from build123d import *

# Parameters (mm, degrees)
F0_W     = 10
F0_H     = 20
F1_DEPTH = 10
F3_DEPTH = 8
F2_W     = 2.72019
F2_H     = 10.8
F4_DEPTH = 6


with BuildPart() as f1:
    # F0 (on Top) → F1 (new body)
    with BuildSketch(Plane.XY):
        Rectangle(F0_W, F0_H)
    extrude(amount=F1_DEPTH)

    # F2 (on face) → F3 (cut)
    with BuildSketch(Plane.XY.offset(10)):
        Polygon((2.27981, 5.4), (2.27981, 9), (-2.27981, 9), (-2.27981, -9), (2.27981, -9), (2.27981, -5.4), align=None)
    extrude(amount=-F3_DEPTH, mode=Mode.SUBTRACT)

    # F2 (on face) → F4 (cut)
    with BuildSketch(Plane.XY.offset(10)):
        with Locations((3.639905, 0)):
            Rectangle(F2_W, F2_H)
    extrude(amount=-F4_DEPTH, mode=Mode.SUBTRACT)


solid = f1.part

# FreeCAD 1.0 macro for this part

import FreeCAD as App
import Part
import Sketcher
Q = App.Units.Quantity


def add_polygon(sketch, points):
    """Adds a closed chain of lines whose ends are joined by coincident constraints."""
    first, n = sketch.GeometryCount, len(points)
    for a, b in zip(points, points[1:] + points[:1]):
        sketch.addGeometry(Part.LineSegment(App.Vector(*a, 0), App.Vector(*b, 0)), False)
    for i in range(n):
        sketch.addConstraint(Sketcher.Constraint("Coincident", first + i, 2, first + (i + 1) % n, 1))

doc = App.newDocument("Part")
body = doc.addObject("PartDesign::Body", "Body")

# Sketch on XY plane
sketch1 = doc.addObject("Sketcher::SketchObject", "Sketch")
body.addObject(sketch1)
sketch1.AttachmentSupport = (doc.XY_Plane, [""])
sketch1.MapMode = "FlatFace"
add_polygon(sketch1, [(-5, 10), (-5, -10), (5, -10), (5, 10)])  # lines 0-3
sketch1.addConstraint(Sketcher.Constraint("Vertical", 0))
sketch1.addConstraint(Sketcher.Constraint("Horizontal", 1))
sketch1.addConstraint(Sketcher.Constraint("Vertical", 2))
sketch1.addConstraint(Sketcher.Constraint("Horizontal", 3))
sketch1.addConstraint(Sketcher.Constraint("Symmetric", 0, 2, 2, 2, -1, 1))
sketch1.addConstraint(Sketcher.Constraint("DistanceX", 1, 1, 1, 2, Q("10 mm")))
sketch1.addConstraint(Sketcher.Constraint("DistanceY", 0, 2, 0, 1, Q("20 mm")))
pad1 = doc.addObject("PartDesign::Pad", "Pad")
body.addObject(pad1)
pad1.Profile = sketch1
pad1.Length = 10

# Sketch on XY plane
sketch2 = doc.addObject("Sketcher::SketchObject", "Sketch001")
body.addObject(sketch2)
sketch2.AttachmentSupport = (doc.XY_Plane, [""])
sketch2.MapMode = "FlatFace"
sketch2.AttachmentOffset = App.Placement(App.Vector(0, 0, 10), App.Rotation())
add_polygon(sketch2, [(2.3, 9), (-2.3, 9), (-2.3, -9), (2.3, -9)])  # lines 0-3
sketch2.addConstraint(Sketcher.Constraint("Horizontal", 0))
sketch2.addConstraint(Sketcher.Constraint("Vertical", 1))
sketch2.addConstraint(Sketcher.Constraint("Horizontal", 2))
sketch2.addConstraint(Sketcher.Constraint("Vertical", 3))
sketch2.addConstraint(Sketcher.Constraint("Symmetric", 0, 2, 2, 2, -1, 1))
sketch2.addConstraint(Sketcher.Constraint("DistanceY", 1, 2, 1, 1, Q("18 mm")))
sketch2.addConstraint(Sketcher.Constraint("DistanceX", 0, 2, 0, 1, Q("4.55962 mm")))
pocket1 = doc.addObject("PartDesign::Pocket", "Pocket")
body.addObject(pocket1)
pocket1.Profile = sketch2
pocket1.Length = 8

# Sketch on XY plane
sketch3 = doc.addObject("Sketcher::SketchObject", "Sketch002")
body.addObject(sketch3)
sketch3.AttachmentSupport = (doc.XY_Plane, [""])
sketch3.MapMode = "FlatFace"
sketch3.AttachmentOffset = App.Placement(App.Vector(0, 0, 10), App.Rotation())
add_polygon(sketch3, [(2.3, 5.4), (2.3, -5.4), (5, -5.4), (5, 5.4)])  # lines 0-3
sketch3.addConstraint(Sketcher.Constraint("Vertical", 0))
sketch3.addConstraint(Sketcher.Constraint("Horizontal", 1))
sketch3.addConstraint(Sketcher.Constraint("Vertical", 2))
sketch3.addConstraint(Sketcher.Constraint("Horizontal", 3))
sketch3.addConstraint(Sketcher.Constraint("DistanceY", 0, 2, 0, 1, Q("10.8 mm")))
sketch3.addConstraint(Sketcher.Constraint("DistanceX", -1, 1, 1, 2, Q("5 mm")))
sketch3.addConstraint(Sketcher.Constraint("DistanceY", 0, 2, -1, 1, Q("5.4 mm")))
sketch3.addConstraint(Sketcher.Constraint("DistanceX", 1, 1, 1, 2, Q("2.72019 mm")))
pocket2 = doc.addObject("PartDesign::Pocket", "Pocket001")
body.addObject(pocket2)
pocket2.Profile = sketch3
pocket2.Length = 6

doc.recompute()
